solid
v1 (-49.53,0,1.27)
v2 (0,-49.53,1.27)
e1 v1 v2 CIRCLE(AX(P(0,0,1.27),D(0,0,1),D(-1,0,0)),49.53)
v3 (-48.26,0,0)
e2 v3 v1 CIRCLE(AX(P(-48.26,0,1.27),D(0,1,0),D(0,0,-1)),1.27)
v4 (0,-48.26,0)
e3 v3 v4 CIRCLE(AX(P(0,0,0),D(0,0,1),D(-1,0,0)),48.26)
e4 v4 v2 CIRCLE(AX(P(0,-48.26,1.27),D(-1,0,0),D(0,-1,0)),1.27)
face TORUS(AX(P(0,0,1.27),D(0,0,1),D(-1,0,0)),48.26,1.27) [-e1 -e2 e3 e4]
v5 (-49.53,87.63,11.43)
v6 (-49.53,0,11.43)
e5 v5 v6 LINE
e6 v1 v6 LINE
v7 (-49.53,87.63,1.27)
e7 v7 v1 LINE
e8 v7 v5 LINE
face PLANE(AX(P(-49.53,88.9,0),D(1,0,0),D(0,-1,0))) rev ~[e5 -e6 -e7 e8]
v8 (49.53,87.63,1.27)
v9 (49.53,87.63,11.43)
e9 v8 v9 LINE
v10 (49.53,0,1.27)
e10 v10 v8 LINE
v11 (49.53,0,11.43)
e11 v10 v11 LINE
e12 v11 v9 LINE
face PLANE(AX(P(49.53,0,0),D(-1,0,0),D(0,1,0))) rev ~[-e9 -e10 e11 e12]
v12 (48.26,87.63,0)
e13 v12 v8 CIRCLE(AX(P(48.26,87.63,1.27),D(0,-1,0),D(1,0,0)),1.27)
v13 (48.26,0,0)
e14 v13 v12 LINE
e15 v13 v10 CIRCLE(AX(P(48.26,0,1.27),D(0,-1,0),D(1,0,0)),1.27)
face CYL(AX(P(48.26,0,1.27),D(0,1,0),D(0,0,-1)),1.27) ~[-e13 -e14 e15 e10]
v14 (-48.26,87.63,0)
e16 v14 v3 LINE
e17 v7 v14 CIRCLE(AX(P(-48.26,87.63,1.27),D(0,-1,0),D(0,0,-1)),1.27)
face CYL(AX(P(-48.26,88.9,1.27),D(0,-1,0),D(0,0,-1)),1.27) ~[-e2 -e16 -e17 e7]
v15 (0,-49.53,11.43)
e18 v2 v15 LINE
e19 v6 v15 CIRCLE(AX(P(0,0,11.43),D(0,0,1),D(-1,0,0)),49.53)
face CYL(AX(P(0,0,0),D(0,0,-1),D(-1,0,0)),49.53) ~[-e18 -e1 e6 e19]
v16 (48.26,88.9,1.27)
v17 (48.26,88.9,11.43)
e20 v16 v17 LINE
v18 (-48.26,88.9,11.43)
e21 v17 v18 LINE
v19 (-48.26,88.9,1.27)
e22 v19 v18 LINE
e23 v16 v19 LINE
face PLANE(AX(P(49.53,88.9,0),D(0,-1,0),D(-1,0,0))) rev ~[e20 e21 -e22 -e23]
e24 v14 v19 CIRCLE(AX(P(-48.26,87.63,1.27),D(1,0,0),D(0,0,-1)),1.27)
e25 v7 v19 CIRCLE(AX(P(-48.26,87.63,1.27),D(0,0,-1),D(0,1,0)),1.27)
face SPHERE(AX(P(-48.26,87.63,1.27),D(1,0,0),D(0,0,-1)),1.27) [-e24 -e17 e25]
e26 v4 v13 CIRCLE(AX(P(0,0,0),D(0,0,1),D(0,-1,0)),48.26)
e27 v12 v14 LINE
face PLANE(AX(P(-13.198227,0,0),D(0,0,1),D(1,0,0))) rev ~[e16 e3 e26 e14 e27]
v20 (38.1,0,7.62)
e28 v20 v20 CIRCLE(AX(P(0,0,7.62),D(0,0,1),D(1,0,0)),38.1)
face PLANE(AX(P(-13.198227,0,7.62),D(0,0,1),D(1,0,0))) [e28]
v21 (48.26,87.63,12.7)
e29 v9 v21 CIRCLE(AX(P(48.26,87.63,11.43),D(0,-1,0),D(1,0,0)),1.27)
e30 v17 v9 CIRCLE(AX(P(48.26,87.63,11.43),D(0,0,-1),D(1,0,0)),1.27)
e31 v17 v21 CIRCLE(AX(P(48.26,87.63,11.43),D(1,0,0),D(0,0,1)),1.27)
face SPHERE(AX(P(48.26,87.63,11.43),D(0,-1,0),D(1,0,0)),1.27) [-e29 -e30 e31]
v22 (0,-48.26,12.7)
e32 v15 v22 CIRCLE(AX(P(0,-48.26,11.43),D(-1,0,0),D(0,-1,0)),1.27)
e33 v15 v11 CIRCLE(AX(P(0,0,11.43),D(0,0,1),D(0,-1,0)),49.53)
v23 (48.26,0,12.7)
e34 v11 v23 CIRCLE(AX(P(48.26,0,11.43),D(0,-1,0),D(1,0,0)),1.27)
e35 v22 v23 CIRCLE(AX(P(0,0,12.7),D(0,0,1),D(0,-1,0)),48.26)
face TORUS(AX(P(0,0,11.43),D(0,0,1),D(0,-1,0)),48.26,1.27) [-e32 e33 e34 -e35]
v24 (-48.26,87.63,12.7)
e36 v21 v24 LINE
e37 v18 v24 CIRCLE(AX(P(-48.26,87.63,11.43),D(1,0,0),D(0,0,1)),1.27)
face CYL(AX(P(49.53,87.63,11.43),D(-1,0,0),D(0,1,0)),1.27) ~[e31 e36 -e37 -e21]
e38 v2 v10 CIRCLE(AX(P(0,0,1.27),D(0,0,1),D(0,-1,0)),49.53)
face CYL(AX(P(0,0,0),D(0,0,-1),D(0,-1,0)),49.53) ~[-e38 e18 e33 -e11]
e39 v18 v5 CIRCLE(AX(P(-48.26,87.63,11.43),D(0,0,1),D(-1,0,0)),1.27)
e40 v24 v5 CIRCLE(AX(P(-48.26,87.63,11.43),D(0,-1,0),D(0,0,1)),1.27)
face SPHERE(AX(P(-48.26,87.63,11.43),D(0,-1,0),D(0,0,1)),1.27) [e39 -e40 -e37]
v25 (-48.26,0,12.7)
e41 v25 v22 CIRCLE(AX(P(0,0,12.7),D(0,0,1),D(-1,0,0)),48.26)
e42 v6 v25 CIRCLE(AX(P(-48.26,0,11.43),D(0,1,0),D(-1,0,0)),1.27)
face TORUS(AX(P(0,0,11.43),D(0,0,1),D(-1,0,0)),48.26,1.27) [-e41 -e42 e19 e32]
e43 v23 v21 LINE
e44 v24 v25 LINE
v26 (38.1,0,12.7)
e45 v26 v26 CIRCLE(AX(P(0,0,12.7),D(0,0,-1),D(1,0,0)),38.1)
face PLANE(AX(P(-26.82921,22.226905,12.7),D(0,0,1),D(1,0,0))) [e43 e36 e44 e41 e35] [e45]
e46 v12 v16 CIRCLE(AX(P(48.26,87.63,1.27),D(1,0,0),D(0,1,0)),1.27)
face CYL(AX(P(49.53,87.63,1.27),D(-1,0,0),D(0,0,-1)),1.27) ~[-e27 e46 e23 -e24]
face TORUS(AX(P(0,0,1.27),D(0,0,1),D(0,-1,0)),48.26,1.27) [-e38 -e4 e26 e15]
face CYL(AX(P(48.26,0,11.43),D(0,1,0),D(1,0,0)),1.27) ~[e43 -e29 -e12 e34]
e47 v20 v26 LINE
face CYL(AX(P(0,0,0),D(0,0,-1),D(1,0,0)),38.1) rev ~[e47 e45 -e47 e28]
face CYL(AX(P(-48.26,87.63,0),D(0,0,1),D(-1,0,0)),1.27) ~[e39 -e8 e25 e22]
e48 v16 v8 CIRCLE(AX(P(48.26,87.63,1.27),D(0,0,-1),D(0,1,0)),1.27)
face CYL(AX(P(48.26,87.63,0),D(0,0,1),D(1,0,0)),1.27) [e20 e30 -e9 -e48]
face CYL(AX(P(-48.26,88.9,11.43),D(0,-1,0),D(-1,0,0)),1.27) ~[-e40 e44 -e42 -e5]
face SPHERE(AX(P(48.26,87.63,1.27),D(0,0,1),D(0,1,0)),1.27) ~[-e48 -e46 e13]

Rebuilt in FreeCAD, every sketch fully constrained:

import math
import FreeCAD as App
import Part
import Sketcher
from FreeCAD import Vector
Q = App.Units.Quantity


def edges_at(feature, points):
    """Names of the edges that pass closest to the given points."""
    edges = feature.Shape.Edges
    near = lambda p: min(range(len(edges)), key=lambda i: edges[i].distToShape(Part.Vertex(*p))[0])
    return sorted({f"Edge{near(p) + 1}" for p in points})

doc = App.newDocument("Part")
params = doc.addObject("Spreadsheet::Sheet", "Params")
for row, (alias, value) in enumerate([
    ("sketch1_diameter", "3 in"),
    ("sketch1_radius", "1.95 in"),
    ("sketch1_height", "3.5 in"),
    ("pad1_length", "0.5 in"),
    ("sketch2_diameter", "3 in"),
    ("pad2_length", "0.3 in"),
    ("fillet_radius", "0.05 in"),
], start=1):
    params.set(f"A{row}", alias)
    params.set(f"B{row}", "=" + value)
    params.setAlias(f"B{row}", alias)

body = doc.addObject("PartDesign::Body", "Body")

sketch1 = doc.addObject("Sketcher::SketchObject", "Sketch")
body.addObject(sketch1)
sketch1.AttachmentSupport = (doc.XY_Plane, [""])
sketch1.MapMode = "FlatFace"
sketch1.addGeometry([
    Part.LineSegment(Vector(-50, 89, 0), Vector(-50, 0, 0)),
    Part.ArcOfCircle(Part.Circle(Vector(0, 0, 0), Vector(0, 0, 1), 50), math.radians(180), math.radians(270)),
    Part.ArcOfCircle(Part.Circle(Vector(0, 0, 0), Vector(0, 0, 1), 50), math.radians(-90), math.radians(0)),
    Part.LineSegment(Vector(50, 0, 0), Vector(50, 89, 0)),
    Part.LineSegment(Vector(50, 89, 0), Vector(-50, 89, 0)),
    Part.Circle(Vector(0, 0, 0), Vector(0, 0, 1), 38),
], False)
sketch1.addConstraint([
    Sketcher.Constraint("Tangent", 0, 2, 1, 1),
    Sketcher.Constraint("Tangent", 1, 2, 2, 1),
    Sketcher.Constraint("Tangent", 2, 2, 3, 1),
    Sketcher.Constraint("Coincident", 3, 2, 4, 1),
    Sketcher.Constraint("Coincident", 4, 2, 0, 1),
    Sketcher.Constraint("Vertical", 0),
    Sketcher.Constraint("Vertical", 3),
    Sketcher.Constraint("Horizontal", 4),
    Sketcher.Constraint("Coincident", 1, 3, -1, 1),
    Sketcher.Constraint("Coincident", 5, 3, -1, 1),
    Sketcher.Constraint("Equal", 1, 2),
    Sketcher.Constraint("PointOnObject", 1, 2, -2),
    Sketcher.Constraint("Diameter", 5, Q("3 in")),
    Sketcher.Constraint("Radius", 1, Q("1.95 in")),
    Sketcher.Constraint("DistanceY", 0, 2, 0, 1, Q("3.5 in")),
])
sketch1.setExpression("Constraints[12]", "Params.sketch1_diameter")
sketch1.setExpression("Constraints[13]", "Params.sketch1_radius")
sketch1.setExpression("Constraints[14]", "Params.sketch1_height")
pad1 = doc.addObject("PartDesign::Pad", "Pad")
body.addObject(pad1)
pad1.Profile = sketch1
pad1.setExpression("Length", "Params.pad1_length")

sketch2 = doc.addObject("Sketcher::SketchObject", "Sketch001")
body.addObject(sketch2)
sketch2.AttachmentSupport = (doc.XY_Plane, [""])
sketch2.MapMode = "FlatFace"
sketch2.addGeometry(Part.Circle(Vector(0, 0, 0), Vector(0, 0, 1), 38), False)
sketch2.addConstraint([
    Sketcher.Constraint("Coincident", 0, 3, -1, 1),
    Sketcher.Constraint("Diameter", 0, Q("3 in")),
])
sketch2.setExpression("Constraints[1]", "Params.sketch2_diameter")
pad2 = doc.addObject("PartDesign::Pad", "Pad001")
body.addObject(pad2)
pad2.Profile = sketch2
pad2.setExpression("Length", "Params.pad2_length")
doc.recompute()

fillet = doc.addObject("PartDesign::Fillet", "Fillet")
body.addObject(fillet)
fillet.Base = (pad2, edges_at(pad2, [
    (49.53, 44.45, 12.7),
    (49.53, 88.9, 6.35),
    (0, 88.9, 12.7),
    (0, 88.9, 0),
    (49.53, 44.45, 0),
    (-49.53, 88.9, 6.35),
]))
fillet.setExpression("Radius", "Params.fillet_radius")

doc.recompute()
